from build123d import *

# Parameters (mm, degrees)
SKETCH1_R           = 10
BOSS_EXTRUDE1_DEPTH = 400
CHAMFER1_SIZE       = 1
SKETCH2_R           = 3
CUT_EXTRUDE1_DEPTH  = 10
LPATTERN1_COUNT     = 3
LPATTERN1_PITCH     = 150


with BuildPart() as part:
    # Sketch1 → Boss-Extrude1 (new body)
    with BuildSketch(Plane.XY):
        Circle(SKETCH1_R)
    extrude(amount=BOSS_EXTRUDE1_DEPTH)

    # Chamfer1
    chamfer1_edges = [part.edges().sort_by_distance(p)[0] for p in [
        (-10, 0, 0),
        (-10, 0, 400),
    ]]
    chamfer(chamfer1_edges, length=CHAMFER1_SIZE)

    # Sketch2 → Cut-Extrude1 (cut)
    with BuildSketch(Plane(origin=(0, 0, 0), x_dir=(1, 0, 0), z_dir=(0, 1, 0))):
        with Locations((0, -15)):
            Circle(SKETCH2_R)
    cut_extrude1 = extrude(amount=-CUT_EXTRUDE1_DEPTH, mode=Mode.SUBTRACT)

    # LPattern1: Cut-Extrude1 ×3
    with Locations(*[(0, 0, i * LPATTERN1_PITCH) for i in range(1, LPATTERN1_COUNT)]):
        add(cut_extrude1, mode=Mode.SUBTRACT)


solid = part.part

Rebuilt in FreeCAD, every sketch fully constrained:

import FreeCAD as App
import Part
import Sketcher
from FreeCAD import Vector


def edges_at(feature, points):
    """Names of the edges that pass closest to the given points."""
    edges = feature.Shape.Edges
    near = lambda p: min(range(len(edges)), key=lambda i: edges[i].distToShape(Part.Vertex(*p))[0])
    return sorted({f"Edge{near(p) + 1}" for p in points})

doc = App.newDocument("Part")
body = doc.addObject("PartDesign::Body", "Body")

# Sketch on XY plane
sketch1 = body.newObject("Sketcher::SketchObject", "Sketch")
sketch1.AttachmentSupport = (doc.getObject("XY_Plane"), [""])
sketch1.MapMode = "FlatFace"
sketch1.addGeometry(Part.Circle(Vector(0, 0, 0), Vector(0, 0, 1), 10), False)
sketch1.addConstraint(Sketcher.Constraint("Coincident", 0, 3, -1, 1))
sketch1.addConstraint(Sketcher.Constraint("Diameter", 0, 20.0))
pad1 = body.newObject("PartDesign::Pad", "Pad")
pad1.Profile = sketch1
pad1.Length = 400
doc.recompute()

chamfer = body.newObject("PartDesign::Chamfer", "Chamfer")
chamfer.Base = (pad1, edges_at(pad1, [(-10, 0, 0), (-10, 0, 400)]))
chamfer.Size = 1

# Sketch on XZ plane
sketch2 = body.newObject("Sketcher::SketchObject", "Sketch001")
sketch2.AttachmentSupport = (doc.getObject("XZ_Plane"), [""])
sketch2.MapMode = "FlatFace"
sketch2.addGeometry(Part.Circle(Vector(0, 15, 0), Vector(0, 0, 1), 3), False)
sketch2.addConstraint(Sketcher.Constraint("PointOnObject", 0, 3, -2))
sketch2.addConstraint(Sketcher.Constraint("Diameter", 0, 6.0))
sketch2.addConstraint(Sketcher.Constraint("DistanceY", -1, 1, 0, 3, 15.0))
pocket1 = body.newObject("PartDesign::Pocket", "Pocket")
pocket1.Profile = sketch2
pocket1.Length = 10
pocket1.Reversed = True
doc.recompute()

linearpattern = body.newObject("PartDesign::LinearPattern", "LinearPattern")
linearpattern.Originals = [pocket1]
linearpattern.Direction = (doc.getObject("Z_Axis"), [""])
linearpattern.Mode = "offset"
linearpattern.Offset = 150
linearpattern.Occurrences = 3
body.Tip = linearpattern

doc.recompute()
